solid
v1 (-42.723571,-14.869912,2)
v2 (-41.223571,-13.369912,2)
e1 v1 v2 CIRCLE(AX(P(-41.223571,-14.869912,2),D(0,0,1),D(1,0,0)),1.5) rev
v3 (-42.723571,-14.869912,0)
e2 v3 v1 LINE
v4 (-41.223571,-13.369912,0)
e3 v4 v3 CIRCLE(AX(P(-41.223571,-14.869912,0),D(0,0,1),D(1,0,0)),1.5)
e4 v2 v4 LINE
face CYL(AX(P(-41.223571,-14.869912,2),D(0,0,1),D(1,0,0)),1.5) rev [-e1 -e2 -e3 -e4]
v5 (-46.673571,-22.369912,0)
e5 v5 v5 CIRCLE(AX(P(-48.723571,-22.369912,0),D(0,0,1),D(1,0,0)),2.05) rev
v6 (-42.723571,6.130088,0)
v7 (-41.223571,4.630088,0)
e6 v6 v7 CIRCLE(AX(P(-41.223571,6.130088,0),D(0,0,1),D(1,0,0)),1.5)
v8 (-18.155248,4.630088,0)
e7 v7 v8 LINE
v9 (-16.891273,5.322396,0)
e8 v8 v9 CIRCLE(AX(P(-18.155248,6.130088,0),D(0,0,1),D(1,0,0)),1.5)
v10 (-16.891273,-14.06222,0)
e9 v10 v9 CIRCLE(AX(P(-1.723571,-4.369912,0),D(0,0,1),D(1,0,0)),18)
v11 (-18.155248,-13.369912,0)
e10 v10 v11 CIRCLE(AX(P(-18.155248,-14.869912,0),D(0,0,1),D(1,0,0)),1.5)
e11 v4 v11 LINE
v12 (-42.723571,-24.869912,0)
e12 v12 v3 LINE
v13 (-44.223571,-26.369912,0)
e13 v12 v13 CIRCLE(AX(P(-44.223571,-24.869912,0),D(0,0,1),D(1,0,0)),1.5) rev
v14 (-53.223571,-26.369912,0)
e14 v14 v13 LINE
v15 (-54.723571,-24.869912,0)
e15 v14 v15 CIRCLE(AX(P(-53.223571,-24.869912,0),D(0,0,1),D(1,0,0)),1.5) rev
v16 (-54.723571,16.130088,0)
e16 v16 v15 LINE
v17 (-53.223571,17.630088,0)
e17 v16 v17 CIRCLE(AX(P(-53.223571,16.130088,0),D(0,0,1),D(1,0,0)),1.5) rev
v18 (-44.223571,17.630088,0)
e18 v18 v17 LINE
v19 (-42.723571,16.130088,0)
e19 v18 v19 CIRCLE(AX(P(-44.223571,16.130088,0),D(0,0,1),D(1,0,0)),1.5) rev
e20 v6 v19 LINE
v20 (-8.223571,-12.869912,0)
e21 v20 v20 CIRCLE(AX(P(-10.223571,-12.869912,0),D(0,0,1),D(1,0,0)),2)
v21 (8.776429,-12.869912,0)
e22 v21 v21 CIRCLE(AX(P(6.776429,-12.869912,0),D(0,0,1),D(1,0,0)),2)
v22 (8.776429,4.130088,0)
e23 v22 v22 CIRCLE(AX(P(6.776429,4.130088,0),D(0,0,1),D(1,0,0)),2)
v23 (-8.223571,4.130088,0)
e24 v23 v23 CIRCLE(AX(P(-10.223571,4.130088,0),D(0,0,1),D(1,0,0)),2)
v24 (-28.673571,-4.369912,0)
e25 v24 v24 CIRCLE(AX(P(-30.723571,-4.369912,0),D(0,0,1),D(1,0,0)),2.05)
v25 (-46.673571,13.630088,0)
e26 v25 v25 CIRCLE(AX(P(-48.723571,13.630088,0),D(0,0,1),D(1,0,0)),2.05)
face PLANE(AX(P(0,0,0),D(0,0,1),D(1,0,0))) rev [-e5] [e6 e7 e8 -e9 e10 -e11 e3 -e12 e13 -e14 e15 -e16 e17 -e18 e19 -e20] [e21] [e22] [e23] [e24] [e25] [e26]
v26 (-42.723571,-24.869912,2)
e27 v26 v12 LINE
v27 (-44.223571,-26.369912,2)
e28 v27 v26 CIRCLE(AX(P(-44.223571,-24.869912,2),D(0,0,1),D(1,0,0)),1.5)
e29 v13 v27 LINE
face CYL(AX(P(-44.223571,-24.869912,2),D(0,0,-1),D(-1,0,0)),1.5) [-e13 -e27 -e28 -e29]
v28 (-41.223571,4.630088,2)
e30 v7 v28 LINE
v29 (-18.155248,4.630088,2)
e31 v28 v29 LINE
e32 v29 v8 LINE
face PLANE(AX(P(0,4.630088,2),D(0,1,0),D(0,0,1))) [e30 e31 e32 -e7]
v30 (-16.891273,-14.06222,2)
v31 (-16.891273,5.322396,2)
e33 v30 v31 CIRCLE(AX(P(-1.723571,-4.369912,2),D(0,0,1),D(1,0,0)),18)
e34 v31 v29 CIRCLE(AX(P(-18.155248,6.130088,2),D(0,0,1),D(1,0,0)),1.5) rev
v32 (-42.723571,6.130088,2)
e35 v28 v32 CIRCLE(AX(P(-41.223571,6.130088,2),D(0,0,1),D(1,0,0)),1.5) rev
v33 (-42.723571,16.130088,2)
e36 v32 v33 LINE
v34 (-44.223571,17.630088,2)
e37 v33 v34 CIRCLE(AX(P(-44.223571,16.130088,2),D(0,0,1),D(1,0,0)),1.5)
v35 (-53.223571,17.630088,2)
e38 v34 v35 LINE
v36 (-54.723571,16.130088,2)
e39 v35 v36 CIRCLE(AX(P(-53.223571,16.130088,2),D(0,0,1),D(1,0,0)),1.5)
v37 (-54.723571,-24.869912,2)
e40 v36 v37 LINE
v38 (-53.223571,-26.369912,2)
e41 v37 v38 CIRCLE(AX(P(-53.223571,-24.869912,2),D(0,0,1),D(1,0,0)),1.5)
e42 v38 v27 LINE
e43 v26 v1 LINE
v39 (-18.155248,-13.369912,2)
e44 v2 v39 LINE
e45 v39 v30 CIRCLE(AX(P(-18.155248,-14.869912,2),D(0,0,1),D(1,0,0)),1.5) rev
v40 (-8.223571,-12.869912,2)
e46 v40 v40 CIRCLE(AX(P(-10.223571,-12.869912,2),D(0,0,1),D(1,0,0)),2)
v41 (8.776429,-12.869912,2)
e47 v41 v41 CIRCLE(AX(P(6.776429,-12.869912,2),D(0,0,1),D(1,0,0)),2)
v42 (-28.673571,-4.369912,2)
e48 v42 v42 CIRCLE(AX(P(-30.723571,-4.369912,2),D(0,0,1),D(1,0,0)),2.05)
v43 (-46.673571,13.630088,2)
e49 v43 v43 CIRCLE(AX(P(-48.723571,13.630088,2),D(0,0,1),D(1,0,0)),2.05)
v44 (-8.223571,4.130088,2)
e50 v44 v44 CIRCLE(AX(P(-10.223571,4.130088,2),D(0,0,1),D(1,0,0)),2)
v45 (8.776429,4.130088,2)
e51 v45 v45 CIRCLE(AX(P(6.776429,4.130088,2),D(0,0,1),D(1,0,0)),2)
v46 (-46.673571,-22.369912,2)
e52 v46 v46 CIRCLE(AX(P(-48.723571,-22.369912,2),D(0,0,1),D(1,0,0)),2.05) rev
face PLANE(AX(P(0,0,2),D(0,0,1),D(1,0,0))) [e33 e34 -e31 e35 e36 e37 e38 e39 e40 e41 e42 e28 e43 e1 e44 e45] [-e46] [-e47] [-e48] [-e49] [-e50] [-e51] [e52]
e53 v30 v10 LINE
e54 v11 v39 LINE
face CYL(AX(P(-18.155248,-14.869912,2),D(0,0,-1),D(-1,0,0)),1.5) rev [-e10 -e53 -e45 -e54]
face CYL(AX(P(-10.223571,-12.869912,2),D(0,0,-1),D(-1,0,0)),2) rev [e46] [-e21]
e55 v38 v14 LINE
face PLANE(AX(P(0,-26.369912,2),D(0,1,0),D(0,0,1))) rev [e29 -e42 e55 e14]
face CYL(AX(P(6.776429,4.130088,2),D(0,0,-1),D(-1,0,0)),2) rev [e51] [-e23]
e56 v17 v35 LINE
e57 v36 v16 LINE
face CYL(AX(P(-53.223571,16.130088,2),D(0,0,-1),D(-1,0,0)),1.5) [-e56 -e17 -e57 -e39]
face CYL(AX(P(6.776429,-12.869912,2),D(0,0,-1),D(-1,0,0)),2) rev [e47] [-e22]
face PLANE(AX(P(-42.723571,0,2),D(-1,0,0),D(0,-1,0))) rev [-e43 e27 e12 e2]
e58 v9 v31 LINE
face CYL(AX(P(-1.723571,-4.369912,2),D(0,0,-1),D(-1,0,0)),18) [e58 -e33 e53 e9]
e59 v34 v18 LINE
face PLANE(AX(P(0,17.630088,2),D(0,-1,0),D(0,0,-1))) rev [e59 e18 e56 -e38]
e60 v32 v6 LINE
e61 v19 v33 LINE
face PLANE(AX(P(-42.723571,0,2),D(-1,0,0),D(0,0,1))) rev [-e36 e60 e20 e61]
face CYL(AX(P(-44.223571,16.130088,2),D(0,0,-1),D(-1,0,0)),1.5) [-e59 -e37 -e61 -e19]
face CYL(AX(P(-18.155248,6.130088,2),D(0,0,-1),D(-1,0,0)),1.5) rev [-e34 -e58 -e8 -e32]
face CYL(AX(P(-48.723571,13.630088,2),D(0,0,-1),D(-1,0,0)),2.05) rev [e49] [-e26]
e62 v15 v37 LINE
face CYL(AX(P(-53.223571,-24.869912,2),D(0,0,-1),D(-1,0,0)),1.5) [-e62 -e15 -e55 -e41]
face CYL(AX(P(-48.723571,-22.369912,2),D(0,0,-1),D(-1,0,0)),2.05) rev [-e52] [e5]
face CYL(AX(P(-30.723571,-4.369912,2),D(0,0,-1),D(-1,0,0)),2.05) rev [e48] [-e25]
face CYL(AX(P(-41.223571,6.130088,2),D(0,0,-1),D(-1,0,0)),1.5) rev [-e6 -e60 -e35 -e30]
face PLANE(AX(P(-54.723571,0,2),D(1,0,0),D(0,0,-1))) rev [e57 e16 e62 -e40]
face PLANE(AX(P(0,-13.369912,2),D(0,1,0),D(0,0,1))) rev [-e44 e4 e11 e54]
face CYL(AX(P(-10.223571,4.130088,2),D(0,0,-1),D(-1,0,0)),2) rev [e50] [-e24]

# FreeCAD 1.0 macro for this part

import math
import FreeCAD as App
import Part
import Sketcher
Q = App.Units.Quantity


def edges_at(feature, points):
    """Names of the edges that pass closest to the given points."""
    edges = feature.Shape.Edges
    near = lambda p: min(range(len(edges)), key=lambda i: edges[i].distToShape(Part.Vertex(*p))[0])
    return sorted({f"Edge{near(p) + 1}" for p in points})

doc = App.newDocument("Part")
params = doc.addObject("Spreadsheet::Sheet", "Params")
for row, (alias, value) in enumerate([
    ("sketch1_diameter", "4 mm"),
    ("sketch1_radius", "18 mm"),
    ("sketch1_diameter2", "4.1 mm"),
    ("sketch1_width", "12 mm"),
    ("sketch1_height", "13 mm"),
    ("pad1_length", "2 mm"),
    ("fillet_radius", "1.5 mm"),
], start=1):
    params.set(f"A{row}", alias)
    params.set(f"B{row}", "=" + value)
    params.setAlias(f"B{row}", alias)

body = doc.addObject("PartDesign::Body", "Body")

sketch1 = doc.addObject("Sketcher::SketchObject", "Sketch")
body.addObject(sketch1)
sketch1.AttachmentSupport = (doc.XY_Plane, [""])
sketch1.MapMode = "FlatFace"
sketch1.addGeometry(Part.LineSegment(App.Vector(-42.7, -13.4, 0), App.Vector(-17.3, -13.4, 0)), False)
sketch1.addGeometry(Part.ArcOfCircle(Part.Circle(App.Vector(-1.7, -4.4, 0), App.Vector(0, 0, 1), 18), math.radians(-150), math.radians(150)), False)
sketch1.addGeometry(Part.LineSegment(App.Vector(-17.3, 4.6, 0), App.Vector(-42.7, 4.6, 0)), False)
sketch1.addGeometry(Part.LineSegment(App.Vector(-42.7, 4.6, 0), App.Vector(-42.7, 17.6, 0)), False)
sketch1.addGeometry(Part.LineSegment(App.Vector(-42.7, 17.6, 0), App.Vector(-54.7, 17.6, 0)), False)
sketch1.addGeometry(Part.LineSegment(App.Vector(-54.7, 17.6, 0), App.Vector(-54.7, -26.4, 0)), False)
sketch1.addGeometry(Part.LineSegment(App.Vector(-54.7, -26.4, 0), App.Vector(-42.7, -26.4, 0)), False)
sketch1.addGeometry(Part.LineSegment(App.Vector(-42.7, -26.4, 0), App.Vector(-42.7, -13.4, 0)), False)
sketch1.addGeometry(Part.Circle(App.Vector(-48.7, -22.4, 0), App.Vector(0, 0, 1), 2), False)
sketch1.addGeometry(Part.Circle(App.Vector(-30.7, -4.4, 0), App.Vector(0, 0, 1), 2), False)
sketch1.addGeometry(Part.Circle(App.Vector(-10.2, -12.9, 0), App.Vector(0, 0, 1), 2), False)
sketch1.addGeometry(Part.Circle(App.Vector(6.8, -12.9, 0), App.Vector(0, 0, 1), 2), False)
sketch1.addGeometry(Part.Circle(App.Vector(-48.7, 13.6, 0), App.Vector(0, 0, 1), 2), False)
sketch1.addGeometry(Part.Circle(App.Vector(-10.2, 4.1, 0), App.Vector(0, 0, 1), 2), False)
sketch1.addGeometry(Part.Circle(App.Vector(6.8, 4.1, 0), App.Vector(0, 0, 1), 2), False)
sketch1.addConstraint(Sketcher.Constraint("Coincident", 0, 2, 1, 1))
sketch1.addConstraint(Sketcher.Constraint("Coincident", 1, 2, 2, 1))
sketch1.addConstraint(Sketcher.Constraint("Coincident", 2, 2, 3, 1))
sketch1.addConstraint(Sketcher.Constraint("Coincident", 3, 2, 4, 1))
sketch1.addConstraint(Sketcher.Constraint("Coincident", 4, 2, 5, 1))
sketch1.addConstraint(Sketcher.Constraint("Coincident", 5, 2, 6, 1))
sketch1.addConstraint(Sketcher.Constraint("Coincident", 6, 2, 7, 1))
sketch1.addConstraint(Sketcher.Constraint("Coincident", 7, 2, 0, 1))
sketch1.addConstraint(Sketcher.Constraint("Horizontal", 0))
sketch1.addConstraint(Sketcher.Constraint("Horizontal", 2))
sketch1.addConstraint(Sketcher.Constraint("Vertical", 3))
sketch1.addConstraint(Sketcher.Constraint("Horizontal", 4))
sketch1.addConstraint(Sketcher.Constraint("Vertical", 5))
sketch1.addConstraint(Sketcher.Constraint("Horizontal", 6))
sketch1.addConstraint(Sketcher.Constraint("Vertical", 7))
sketch1.addConstraint(Sketcher.Constraint("Equal", 8, 9))
sketch1.addConstraint(Sketcher.Constraint("Equal", 10, 11))
sketch1.addConstraint(Sketcher.Constraint("Equal", 9, 12))
sketch1.addConstraint(Sketcher.Constraint("Equal", 11, 13))
sketch1.addConstraint(Sketcher.Constraint("Equal", 13, 14))
sketch1.addConstraint(Sketcher.Constraint("Horizontal", 1, 3, 9, 3))
sketch1.addConstraint(Sketcher.Constraint("Horizontal", 10, 3, 11, 3))
sketch1.addConstraint(Sketcher.Constraint("Horizontal", 13, 3, 14, 3))
sketch1.addConstraint(Sketcher.Constraint("Vertical", 8, 3, 12, 3))
sketch1.addConstraint(Sketcher.Constraint("Vertical", 10, 3, 13, 3))
sketch1.addConstraint(Sketcher.Constraint("Vertical", 11, 3, 14, 3))
sketch1.addConstraint(Sketcher.Constraint("Vertical", 0, 2, 1, 2))
sketch1.addConstraint(Sketcher.Constraint("Vertical", 3, 2, 6, 2))
sketch1.addConstraint(Sketcher.Constraint("Equal", 3, 7))
sketch1.addConstraint(Sketcher.Constraint("Diameter", 10, Q("4 mm")))
sketch1.addConstraint(Sketcher.Constraint("Radius", 1, Q("18 mm")))
sketch1.addConstraint(Sketcher.Constraint("Diameter", 8, Q("4.1 mm")))
sketch1.addConstraint(Sketcher.Constraint("DistanceX", 4, 2, 4, 1, Q("12 mm")))
sketch1.addConstraint(Sketcher.Constraint("DistanceY", 3, 1, 3, 2, Q("13 mm")))
sketch1.addConstraint(Sketcher.Constraint("DistanceY", 5, 2, 5, 1, Q("44 mm")))
sketch1.addConstraint(Sketcher.Constraint("DistanceX", 8, 3, 1, 3, Q("47 mm")))
sketch1.addConstraint(Sketcher.Constraint("DistanceY", 8, 3, 1, 3, Q("18 mm")))
sketch1.addConstraint(Sketcher.Constraint("DistanceX", 8, 3, 9, 3, Q("18 mm")))
sketch1.addConstraint(Sketcher.Constraint("DistanceX", 10, 3, 11, 3, Q("17 mm")))
sketch1.addConstraint(Sketcher.Constraint("DistanceY", 9, 3, 12, 3, Q("18 mm")))
sketch1.addConstraint(Sketcher.Constraint("DistanceY", 10, 3, 13, 3, Q("17 mm")))
sketch1.addConstraint(Sketcher.Constraint("DistanceX", 12, 3, 2, 2, Q("6 mm")))
sketch1.addConstraint(Sketcher.Constraint("DistanceX", 10, 3, 1, 3, Q("8.5 mm")))
sketch1.addConstraint(Sketcher.Constraint("DistanceY", 10, 3, 1, 3, Q("8.5 mm")))
sketch1.addConstraint(Sketcher.Constraint("DistanceX", 1, 3, -1, 1, Q("1.723571 mm")))
sketch1.addConstraint(Sketcher.Constraint("DistanceY", 1, 3, -1, 1, Q("4.369912 mm")))
sketch1.setExpression("Constraints[29]", "Params.sketch1_diameter")
sketch1.setExpression("Constraints[30]", "Params.sketch1_radius")
sketch1.setExpression("Constraints[31]", "Params.sketch1_diameter2")
sketch1.setExpression("Constraints[32]", "Params.sketch1_width")
sketch1.setExpression("Constraints[33]", "Params.sketch1_height")
pad1 = doc.addObject("PartDesign::Pad", "Pad")
body.addObject(pad1)
pad1.Profile = sketch1
pad1.setExpression("Length", "Params.pad1_length")
doc.recompute()

fillet = doc.addObject("PartDesign::Fillet", "Fillet")
body.addObject(fillet)
fillet.Base = (pad1, edges_at(pad1, [
    (-42.724, -13.37, 1),
    (-42.724, -26.37, 1),
    (-54.724, -26.37, 1),
    (-54.724, 17.63, 1),
    (-42.724, 17.63, 1),
    (-42.724, 4.63, 1),
    (-17.312, 4.63, 1),
    (-17.312, -13.37, 1),
]))
fillet.setExpression("Radius", "Params.fillet_radius")

doc.recompute()
